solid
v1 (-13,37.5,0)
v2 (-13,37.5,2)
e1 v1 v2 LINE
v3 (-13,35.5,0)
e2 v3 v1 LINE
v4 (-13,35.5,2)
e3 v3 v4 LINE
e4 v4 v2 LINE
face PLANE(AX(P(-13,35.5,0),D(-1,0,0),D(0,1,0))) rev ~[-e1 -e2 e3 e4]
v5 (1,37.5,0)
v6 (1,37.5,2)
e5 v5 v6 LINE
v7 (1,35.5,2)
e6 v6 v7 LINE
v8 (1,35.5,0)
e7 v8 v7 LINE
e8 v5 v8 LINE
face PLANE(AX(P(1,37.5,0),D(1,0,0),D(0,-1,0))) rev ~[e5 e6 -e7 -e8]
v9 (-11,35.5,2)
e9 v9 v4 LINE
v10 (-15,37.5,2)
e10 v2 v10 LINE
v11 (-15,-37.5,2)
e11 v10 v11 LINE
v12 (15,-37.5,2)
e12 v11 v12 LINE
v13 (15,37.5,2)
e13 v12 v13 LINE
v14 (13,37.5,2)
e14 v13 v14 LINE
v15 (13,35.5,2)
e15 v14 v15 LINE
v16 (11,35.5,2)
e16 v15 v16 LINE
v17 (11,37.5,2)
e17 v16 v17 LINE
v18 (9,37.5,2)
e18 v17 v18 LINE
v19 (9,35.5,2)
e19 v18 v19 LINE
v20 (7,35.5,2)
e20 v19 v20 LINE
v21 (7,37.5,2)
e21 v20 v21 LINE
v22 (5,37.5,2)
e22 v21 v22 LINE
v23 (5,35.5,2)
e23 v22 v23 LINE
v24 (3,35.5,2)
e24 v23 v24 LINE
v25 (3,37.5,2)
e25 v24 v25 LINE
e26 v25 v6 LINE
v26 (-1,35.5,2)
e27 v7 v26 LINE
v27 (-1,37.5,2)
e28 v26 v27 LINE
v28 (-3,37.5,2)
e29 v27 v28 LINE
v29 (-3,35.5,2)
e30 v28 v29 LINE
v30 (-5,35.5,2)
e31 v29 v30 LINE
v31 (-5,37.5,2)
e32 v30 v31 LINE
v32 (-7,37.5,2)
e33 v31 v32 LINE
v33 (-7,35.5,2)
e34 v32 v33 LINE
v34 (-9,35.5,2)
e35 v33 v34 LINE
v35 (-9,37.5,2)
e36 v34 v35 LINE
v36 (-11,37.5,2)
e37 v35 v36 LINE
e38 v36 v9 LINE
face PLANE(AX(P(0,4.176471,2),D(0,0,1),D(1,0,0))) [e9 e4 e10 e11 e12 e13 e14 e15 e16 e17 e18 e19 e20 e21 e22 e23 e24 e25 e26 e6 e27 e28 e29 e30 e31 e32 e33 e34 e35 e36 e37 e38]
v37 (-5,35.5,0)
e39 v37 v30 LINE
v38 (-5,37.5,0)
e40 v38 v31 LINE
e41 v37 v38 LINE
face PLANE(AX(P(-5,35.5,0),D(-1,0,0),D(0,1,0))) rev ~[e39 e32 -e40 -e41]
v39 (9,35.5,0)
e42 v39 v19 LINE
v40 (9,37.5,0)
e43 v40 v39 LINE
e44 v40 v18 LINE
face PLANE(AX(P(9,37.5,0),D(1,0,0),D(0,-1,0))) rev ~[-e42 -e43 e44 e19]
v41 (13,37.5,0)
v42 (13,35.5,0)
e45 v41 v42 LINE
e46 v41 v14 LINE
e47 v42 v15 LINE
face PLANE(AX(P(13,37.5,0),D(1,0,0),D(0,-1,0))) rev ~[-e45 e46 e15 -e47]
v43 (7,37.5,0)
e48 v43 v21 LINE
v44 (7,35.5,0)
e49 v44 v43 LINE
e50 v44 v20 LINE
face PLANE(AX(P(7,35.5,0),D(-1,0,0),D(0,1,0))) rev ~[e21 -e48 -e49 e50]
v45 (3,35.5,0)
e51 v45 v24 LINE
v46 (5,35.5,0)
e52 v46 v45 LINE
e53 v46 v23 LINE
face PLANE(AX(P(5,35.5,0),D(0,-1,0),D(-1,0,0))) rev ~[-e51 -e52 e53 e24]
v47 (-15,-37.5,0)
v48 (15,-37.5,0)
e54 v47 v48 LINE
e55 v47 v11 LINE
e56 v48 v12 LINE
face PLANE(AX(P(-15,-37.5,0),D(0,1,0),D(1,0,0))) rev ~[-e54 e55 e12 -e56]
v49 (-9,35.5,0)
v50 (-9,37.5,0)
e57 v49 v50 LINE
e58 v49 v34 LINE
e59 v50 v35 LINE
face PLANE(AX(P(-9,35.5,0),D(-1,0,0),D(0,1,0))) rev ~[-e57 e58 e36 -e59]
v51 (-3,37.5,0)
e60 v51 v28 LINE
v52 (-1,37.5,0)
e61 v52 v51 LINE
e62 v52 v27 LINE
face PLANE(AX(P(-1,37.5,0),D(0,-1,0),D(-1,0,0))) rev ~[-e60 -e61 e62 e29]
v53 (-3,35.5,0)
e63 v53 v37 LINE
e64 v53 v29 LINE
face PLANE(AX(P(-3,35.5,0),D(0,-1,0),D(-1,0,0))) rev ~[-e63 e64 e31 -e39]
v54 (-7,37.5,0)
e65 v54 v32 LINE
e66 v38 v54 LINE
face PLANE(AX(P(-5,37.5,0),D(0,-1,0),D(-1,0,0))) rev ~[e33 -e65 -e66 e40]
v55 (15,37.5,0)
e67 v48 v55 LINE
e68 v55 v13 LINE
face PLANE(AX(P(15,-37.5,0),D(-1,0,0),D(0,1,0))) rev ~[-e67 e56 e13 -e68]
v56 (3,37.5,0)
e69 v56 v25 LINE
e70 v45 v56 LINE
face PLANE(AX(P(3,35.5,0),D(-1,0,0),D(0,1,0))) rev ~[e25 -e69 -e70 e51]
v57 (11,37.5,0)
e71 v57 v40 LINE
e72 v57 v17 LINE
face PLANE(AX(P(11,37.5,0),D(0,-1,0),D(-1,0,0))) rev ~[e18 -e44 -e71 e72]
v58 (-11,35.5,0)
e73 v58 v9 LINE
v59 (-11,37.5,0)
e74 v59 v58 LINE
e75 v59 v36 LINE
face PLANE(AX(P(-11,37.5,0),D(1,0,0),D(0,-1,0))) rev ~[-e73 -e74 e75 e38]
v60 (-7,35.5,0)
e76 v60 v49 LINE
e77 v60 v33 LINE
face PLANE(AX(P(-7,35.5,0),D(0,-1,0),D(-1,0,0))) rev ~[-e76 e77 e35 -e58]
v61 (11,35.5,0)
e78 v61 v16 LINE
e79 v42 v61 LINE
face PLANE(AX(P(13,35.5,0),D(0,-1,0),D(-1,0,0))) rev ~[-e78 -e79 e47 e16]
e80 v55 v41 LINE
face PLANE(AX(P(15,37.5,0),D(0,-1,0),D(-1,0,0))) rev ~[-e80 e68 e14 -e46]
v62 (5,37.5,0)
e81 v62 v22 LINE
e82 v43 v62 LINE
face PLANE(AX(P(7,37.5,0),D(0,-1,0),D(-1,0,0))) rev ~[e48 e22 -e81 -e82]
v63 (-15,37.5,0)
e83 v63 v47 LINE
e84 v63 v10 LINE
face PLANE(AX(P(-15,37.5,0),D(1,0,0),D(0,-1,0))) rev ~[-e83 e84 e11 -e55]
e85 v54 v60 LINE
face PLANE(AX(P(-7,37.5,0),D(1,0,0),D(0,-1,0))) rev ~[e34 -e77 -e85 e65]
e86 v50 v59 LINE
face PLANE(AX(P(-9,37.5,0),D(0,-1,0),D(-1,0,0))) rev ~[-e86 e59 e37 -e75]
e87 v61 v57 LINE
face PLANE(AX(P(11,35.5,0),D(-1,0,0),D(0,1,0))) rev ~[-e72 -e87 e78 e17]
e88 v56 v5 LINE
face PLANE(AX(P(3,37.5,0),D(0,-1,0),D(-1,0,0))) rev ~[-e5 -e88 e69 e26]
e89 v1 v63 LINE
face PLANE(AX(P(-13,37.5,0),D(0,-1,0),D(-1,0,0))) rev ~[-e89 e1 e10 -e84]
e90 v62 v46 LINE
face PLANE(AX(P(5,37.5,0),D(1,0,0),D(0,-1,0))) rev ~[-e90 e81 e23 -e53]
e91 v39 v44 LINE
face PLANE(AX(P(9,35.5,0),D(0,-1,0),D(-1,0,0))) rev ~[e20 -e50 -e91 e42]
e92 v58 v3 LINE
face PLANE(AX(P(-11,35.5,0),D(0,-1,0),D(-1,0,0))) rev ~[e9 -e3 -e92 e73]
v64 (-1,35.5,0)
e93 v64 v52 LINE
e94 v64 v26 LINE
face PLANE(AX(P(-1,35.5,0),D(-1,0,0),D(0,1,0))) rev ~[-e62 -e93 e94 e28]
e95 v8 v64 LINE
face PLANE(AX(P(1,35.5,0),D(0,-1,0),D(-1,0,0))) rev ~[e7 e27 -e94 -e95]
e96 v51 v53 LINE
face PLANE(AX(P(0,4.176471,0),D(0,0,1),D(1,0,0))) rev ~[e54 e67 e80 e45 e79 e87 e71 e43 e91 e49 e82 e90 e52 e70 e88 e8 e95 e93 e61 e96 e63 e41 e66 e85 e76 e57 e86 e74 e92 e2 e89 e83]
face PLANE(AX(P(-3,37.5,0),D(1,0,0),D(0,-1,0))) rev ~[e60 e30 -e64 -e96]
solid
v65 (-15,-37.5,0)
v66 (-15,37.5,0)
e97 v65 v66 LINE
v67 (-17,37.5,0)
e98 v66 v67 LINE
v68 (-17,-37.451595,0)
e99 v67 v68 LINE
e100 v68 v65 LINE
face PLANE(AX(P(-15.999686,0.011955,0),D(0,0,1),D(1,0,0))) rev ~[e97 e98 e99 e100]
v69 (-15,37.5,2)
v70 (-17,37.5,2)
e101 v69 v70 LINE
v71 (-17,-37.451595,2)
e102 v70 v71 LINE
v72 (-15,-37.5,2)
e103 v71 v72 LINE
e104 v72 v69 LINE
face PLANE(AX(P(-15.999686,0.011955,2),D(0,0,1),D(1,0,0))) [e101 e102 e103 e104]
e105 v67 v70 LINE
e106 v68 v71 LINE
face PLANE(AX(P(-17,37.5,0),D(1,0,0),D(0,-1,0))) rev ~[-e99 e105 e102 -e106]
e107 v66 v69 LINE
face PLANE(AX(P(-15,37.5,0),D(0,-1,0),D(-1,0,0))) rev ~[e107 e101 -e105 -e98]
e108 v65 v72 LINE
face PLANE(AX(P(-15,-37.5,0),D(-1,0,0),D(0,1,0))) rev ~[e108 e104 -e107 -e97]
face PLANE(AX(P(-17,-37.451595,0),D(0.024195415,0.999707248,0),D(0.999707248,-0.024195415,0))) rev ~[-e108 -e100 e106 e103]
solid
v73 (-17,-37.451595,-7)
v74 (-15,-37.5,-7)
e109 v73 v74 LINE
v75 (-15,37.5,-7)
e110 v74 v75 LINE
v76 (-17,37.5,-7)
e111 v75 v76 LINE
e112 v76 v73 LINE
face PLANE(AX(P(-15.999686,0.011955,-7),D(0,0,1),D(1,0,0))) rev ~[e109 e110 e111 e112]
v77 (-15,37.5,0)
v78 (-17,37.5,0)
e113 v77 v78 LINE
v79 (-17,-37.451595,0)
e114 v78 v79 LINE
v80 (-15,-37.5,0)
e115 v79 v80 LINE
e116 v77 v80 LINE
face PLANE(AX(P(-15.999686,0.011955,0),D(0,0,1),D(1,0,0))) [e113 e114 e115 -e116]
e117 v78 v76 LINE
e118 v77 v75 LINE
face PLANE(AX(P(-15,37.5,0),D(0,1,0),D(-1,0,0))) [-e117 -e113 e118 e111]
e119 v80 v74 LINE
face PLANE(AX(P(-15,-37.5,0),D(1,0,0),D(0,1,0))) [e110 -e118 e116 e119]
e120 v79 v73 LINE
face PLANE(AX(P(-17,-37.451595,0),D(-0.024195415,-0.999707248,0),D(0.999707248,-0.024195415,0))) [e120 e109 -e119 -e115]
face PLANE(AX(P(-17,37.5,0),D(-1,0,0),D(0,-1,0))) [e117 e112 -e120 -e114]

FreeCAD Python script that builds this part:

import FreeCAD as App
import Part
import Sketcher

V = App.Vector


def add_polygon(sketch, points):
    """Adds a closed chain of lines whose ends are joined by coincident constraints."""
    first, n = sketch.GeometryCount, len(points)
    for a, b in zip(points, points[1:] + points[:1]):
        sketch.addGeometry(Part.LineSegment(App.Vector(*a, 0), App.Vector(*b, 0)), False)
    for i in range(n):
        sketch.addConstraint(Sketcher.Constraint("Coincident", first + i, 2, first + (i + 1) % n, 1))

doc = App.newDocument("Part")
body = doc.addObject("PartDesign::Body", "Body")
body.AllowCompound = True

sketch1 = body.newObject("Sketcher::SketchObject", "Sketch")
sketch1.AttachmentSupport = (doc.getObject("XY_Plane"), [""])
sketch1.MapMode = "FlatFace"
add_polygon(sketch1, [(-15, 37.5), (-15, -37.5), (15, -37.5), (15, 37.5), (13, 37.5), (13, 35.5), (11, 35.5), (11, 37.5), (9, 37.5), (9, 35.5), (7, 35.5), (7, 37.5), (5, 37.5), (5, 35.5), (3, 35.5), (3, 37.5), (1, 37.5), (1, 35.5), (-1, 35.5), (-1, 37.5), (-3, 37.5), (-3, 35.5), (-5, 35.5), (-5, 37.5), (-7, 37.5), (-7, 35.5), (-9, 35.5), (-9, 37.5), (-11, 37.5), (-11, 35.5), (-13, 35.5), (-13, 37.5)])
sketch1.addConstraint([
    Sketcher.Constraint("Vertical", 0),
    Sketcher.Constraint("Horizontal", 1),
    Sketcher.Constraint("Vertical", 2),
    Sketcher.Constraint("Horizontal", 3),
    Sketcher.Constraint("Vertical", 4),
    Sketcher.Constraint("Horizontal", 5),
    Sketcher.Constraint("Vertical", 6),
    Sketcher.Constraint("Horizontal", 7),
    Sketcher.Constraint("Vertical", 8),
    Sketcher.Constraint("Horizontal", 9),
    Sketcher.Constraint("Vertical", 10),
    Sketcher.Constraint("Horizontal", 11),
    Sketcher.Constraint("Vertical", 12),
    Sketcher.Constraint("Horizontal", 13),
    Sketcher.Constraint("Vertical", 14),
    Sketcher.Constraint("Horizontal", 15),
    Sketcher.Constraint("Vertical", 16),
    Sketcher.Constraint("Horizontal", 17),
    Sketcher.Constraint("Vertical", 18),
    Sketcher.Constraint("Horizontal", 19),
    Sketcher.Constraint("Vertical", 20),
    Sketcher.Constraint("Horizontal", 21),
    Sketcher.Constraint("Vertical", 22),
    Sketcher.Constraint("Horizontal", 23),
    Sketcher.Constraint("Vertical", 24),
    Sketcher.Constraint("Horizontal", 25),
    Sketcher.Constraint("Vertical", 26),
    Sketcher.Constraint("Horizontal", 27),
    Sketcher.Constraint("Vertical", 28),
    Sketcher.Constraint("Horizontal", 29),
    Sketcher.Constraint("Vertical", 30),
    Sketcher.Constraint("Horizontal", 31),
    Sketcher.Constraint("Symmetric", 0, 2, 2, 2, -1, 1),
    Sketcher.Constraint("Symmetric", 15, 2, 18, 2, -2),
    Sketcher.Constraint("Symmetric", 13, 2, 20, 2, -2),
    Sketcher.Constraint("Symmetric", 11, 2, 22, 2, -2),
    Sketcher.Constraint("Symmetric", 9, 2, 24, 2, -2),
    Sketcher.Constraint("Symmetric", 7, 2, 26, 2, -2),
    Sketcher.Constraint("Symmetric", 5, 2, 28, 2, -2),
    Sketcher.Constraint("Symmetric", 3, 2, 30, 2, -2),
    Sketcher.Constraint("Horizontal", 3, 2, 6, 2),
    Sketcher.Constraint("Horizontal", 5, 2, 8, 2),
    Sketcher.Constraint("Horizontal", 7, 2, 10, 2),
    Sketcher.Constraint("Horizontal", 9, 2, 12, 2),
    Sketcher.Constraint("Horizontal", 11, 2, 14, 2),
    Sketcher.Constraint("Horizontal", 13, 2, 16, 2),
    Sketcher.Constraint("Equal", 3, 5),
    Sketcher.Constraint("Equal", 5, 7),
    Sketcher.Constraint("Equal", 7, 9),
    Sketcher.Constraint("Equal", 9, 11),
    Sketcher.Constraint("Equal", 11, 13),
    Sketcher.Constraint("Equal", 13, 15),
    Sketcher.Constraint("Equal", 15, 17),
    Sketcher.Constraint("Equal", 31, 4),
    Sketcher.Constraint("DistanceX", 1, 1, 1, 2, 30.0),
    Sketcher.Constraint("DistanceY", 0, 2, 0, 1, 75.0),
])
pad1 = body.newObject("PartDesign::Pad", "Pad")
pad1.Profile = sketch1
pad1.Length = 2

sketch2 = body.newObject("Sketcher::SketchObject", "Sketch001")
sketch2.AttachmentSupport = (doc.getObject("XY_Plane"), [""])
sketch2.MapMode = "FlatFace"
add_polygon(sketch2, [(-17, -37.451595), (-15, -37.5), (-15, 37.5), (-17, 37.5)])
sketch2.addConstraint([
    Sketcher.Constraint("Vertical", 1),
    Sketcher.Constraint("Horizontal", 2),
    Sketcher.Constraint("Vertical", 3),
    Sketcher.Constraint("DistanceX", 2, 2, 2, 1, 2.0),
    Sketcher.Constraint("DistanceY", 1, 1, 1, 2, 75.0),
    Sketcher.Constraint("DistanceX", 0, 2, -1, 1, 15.0),
    Sketcher.Constraint("DistanceY", 0, 2, -1, 1, 37.5),
    Sketcher.Constraint("DistanceY", 3, 2, 3, 1, 74.951595),
])
pad2 = body.newObject("PartDesign::Pad", "Pad001")
pad2.Profile = sketch2
pad2.Length = 7
pad2.Reversed = True
body2 = doc.addObject("PartDesign::Body", "Body001")

sketch3 = body2.newObject("Sketcher::SketchObject", "Sketch002")
sketch3.AttachmentSupport = (doc.getObject("XY_Plane001"), [""])
sketch3.MapMode = "FlatFace"
add_polygon(sketch3, [(-17, -37.451595), (-15, -37.5), (-15, 37.5), (-17, 37.5)])
sketch3.addConstraint([
    Sketcher.Constraint("Vertical", 1),
    Sketcher.Constraint("Horizontal", 2),
    Sketcher.Constraint("Vertical", 3),
    Sketcher.Constraint("DistanceX", 2, 2, 2, 1, 2.0),
    Sketcher.Constraint("DistanceY", 1, 1, 1, 2, 75.0),
    Sketcher.Constraint("DistanceX", 0, 2, -1, 1, 15.0),
    Sketcher.Constraint("DistanceY", 0, 2, -1, 1, 37.5),
    Sketcher.Constraint("DistanceY", 3, 2, 3, 1, 74.951595),
])
pad3 = body2.newObject("PartDesign::Pad", "Pad002")
pad3.Profile = sketch3
pad3.Length = 2

doc.recompute()
